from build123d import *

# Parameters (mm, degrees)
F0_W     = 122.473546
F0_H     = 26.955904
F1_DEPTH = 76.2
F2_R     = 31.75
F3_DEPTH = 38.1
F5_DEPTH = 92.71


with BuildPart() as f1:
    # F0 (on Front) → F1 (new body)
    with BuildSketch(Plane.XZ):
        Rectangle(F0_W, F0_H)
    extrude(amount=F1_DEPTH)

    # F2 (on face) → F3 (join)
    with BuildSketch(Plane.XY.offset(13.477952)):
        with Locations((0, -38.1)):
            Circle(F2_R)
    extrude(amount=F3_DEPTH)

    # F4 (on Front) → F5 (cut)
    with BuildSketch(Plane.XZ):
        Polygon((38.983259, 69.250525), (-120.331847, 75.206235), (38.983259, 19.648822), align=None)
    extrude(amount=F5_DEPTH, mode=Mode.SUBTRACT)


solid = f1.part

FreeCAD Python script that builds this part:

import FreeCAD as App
import Part
import Sketcher

V = App.Vector
Q = App.Units.Quantity


def add_polygon(sketch, points):
    """Adds a closed chain of lines whose ends are joined by coincident constraints."""
    first, n = sketch.GeometryCount, len(points)
    for a, b in zip(points, points[1:] + points[:1]):
        sketch.addGeometry(Part.LineSegment(App.Vector(*a, 0), App.Vector(*b, 0)), False)
    for i in range(n):
        sketch.addConstraint(Sketcher.Constraint("Coincident", first + i, 2, first + (i + 1) % n, 1))

doc = App.newDocument("Part")
body = doc.addObject("PartDesign::Body", "Body")

sketch1 = body.newObject("Sketcher::SketchObject", "Sketch")
sketch1.AttachmentSupport = (doc.getObject("XZ_Plane"), [""])
sketch1.MapMode = "FlatFace"
add_polygon(sketch1, [(-61, 13), (-61, -13), (61, -13), (61, 13)])
sketch1.addConstraint([
    Sketcher.Constraint("Vertical", 0),
    Sketcher.Constraint("Horizontal", 1),
    Sketcher.Constraint("Vertical", 2),
    Sketcher.Constraint("Horizontal", 3),
    Sketcher.Constraint("Symmetric", 0, 2, 2, 2, -1, 1),
    Sketcher.Constraint("DistanceX", 1, 1, 1, 2, 122.473546),
    Sketcher.Constraint("DistanceY", 0, 2, 0, 1, 26.955904),
])
pad1 = body.newObject("PartDesign::Pad", "Pad")
pad1.Profile = sketch1
pad1.Length = Q("3 in")

sketch2 = body.newObject("Sketcher::SketchObject", "Sketch001")
sketch2.AttachmentSupport = (doc.getObject("XY_Plane"), [""])
sketch2.MapMode = "FlatFace"
sketch2.AttachmentOffset = App.Placement(V(0, 0, 13.477952), App.Rotation())
sketch2.addGeometry(Part.Circle(V(0, -38, 0), V(0, 0, 1), 32), False)
sketch2.addConstraint([
    Sketcher.Constraint("PointOnObject", 0, 3, -2),
    Sketcher.Constraint("Diameter", 0, Q("2.5 in")),
    Sketcher.Constraint("DistanceY", 0, 3, -1, 1, Q("1.5 in")),
])
pad2 = body.newObject("PartDesign::Pad", "Pad001")
pad2.Profile = sketch2
pad2.Length = Q("1.5 in")

sketch3 = body.newObject("Sketcher::SketchObject", "Sketch002")
sketch3.AttachmentSupport = (doc.getObject("XZ_Plane"), [""])
sketch3.MapMode = "FlatFace"
add_polygon(sketch3, [(39, 69), (-120, 75), (39, 20)])
sketch3.addConstraint([
    Sketcher.Constraint("Vertical", 2),
    Sketcher.Constraint("Distance", 0, 159.426389),
    Sketcher.Constraint("DistanceY", 2, 1, 2, 2, 49.601703),
    Sketcher.Constraint("DistanceX", -1, 1, 1, 2, 38.983259),
    Sketcher.Constraint("DistanceY", -1, 1, 1, 2, 19.648822),
    Sketcher.Constraint("DistanceY", 2, 2, 0, 2, 5.95571),
])
pocket1 = body.newObject("PartDesign::Pocket", "Pocket")
pocket1.Profile = sketch3
pocket1.Length = Q("3.65 in")
pocket1.Reversed = True

doc.recompute()
